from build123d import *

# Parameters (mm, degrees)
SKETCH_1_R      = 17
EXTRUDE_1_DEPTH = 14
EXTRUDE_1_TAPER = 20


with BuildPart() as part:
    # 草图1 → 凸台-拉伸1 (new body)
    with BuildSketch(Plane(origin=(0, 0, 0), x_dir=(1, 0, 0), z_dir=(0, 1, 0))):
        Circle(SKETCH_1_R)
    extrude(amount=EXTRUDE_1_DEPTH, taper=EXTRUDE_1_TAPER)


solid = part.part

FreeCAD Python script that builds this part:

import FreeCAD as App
import Part
import Sketcher
Q = App.Units.Quantity

doc = App.newDocument("Part")
body = doc.addObject("PartDesign::Body", "Body")

sketch1 = body.newObject("Sketcher::SketchObject", "Sketch")
sketch1.AttachmentSupport = (doc.getObject("XZ_Plane"), [""])
sketch1.MapMode = "FlatFace"
sketch1.addGeometry(Part.Circle(App.Vector(0, 0, 0), App.Vector(0, 0, 1), 17), False)
sketch1.addConstraint(Sketcher.Constraint("Coincident", 0, 3, -1, 1))
sketch1.addConstraint(Sketcher.Constraint("Diameter", 0, Q("34 mm")))
pad1 = body.newObject("PartDesign::Pad", "Pad")
pad1.Profile = sketch1
pad1.Length = 14
pad1.Reversed = True
pad1.TaperAngle = -20

doc.recompute()
